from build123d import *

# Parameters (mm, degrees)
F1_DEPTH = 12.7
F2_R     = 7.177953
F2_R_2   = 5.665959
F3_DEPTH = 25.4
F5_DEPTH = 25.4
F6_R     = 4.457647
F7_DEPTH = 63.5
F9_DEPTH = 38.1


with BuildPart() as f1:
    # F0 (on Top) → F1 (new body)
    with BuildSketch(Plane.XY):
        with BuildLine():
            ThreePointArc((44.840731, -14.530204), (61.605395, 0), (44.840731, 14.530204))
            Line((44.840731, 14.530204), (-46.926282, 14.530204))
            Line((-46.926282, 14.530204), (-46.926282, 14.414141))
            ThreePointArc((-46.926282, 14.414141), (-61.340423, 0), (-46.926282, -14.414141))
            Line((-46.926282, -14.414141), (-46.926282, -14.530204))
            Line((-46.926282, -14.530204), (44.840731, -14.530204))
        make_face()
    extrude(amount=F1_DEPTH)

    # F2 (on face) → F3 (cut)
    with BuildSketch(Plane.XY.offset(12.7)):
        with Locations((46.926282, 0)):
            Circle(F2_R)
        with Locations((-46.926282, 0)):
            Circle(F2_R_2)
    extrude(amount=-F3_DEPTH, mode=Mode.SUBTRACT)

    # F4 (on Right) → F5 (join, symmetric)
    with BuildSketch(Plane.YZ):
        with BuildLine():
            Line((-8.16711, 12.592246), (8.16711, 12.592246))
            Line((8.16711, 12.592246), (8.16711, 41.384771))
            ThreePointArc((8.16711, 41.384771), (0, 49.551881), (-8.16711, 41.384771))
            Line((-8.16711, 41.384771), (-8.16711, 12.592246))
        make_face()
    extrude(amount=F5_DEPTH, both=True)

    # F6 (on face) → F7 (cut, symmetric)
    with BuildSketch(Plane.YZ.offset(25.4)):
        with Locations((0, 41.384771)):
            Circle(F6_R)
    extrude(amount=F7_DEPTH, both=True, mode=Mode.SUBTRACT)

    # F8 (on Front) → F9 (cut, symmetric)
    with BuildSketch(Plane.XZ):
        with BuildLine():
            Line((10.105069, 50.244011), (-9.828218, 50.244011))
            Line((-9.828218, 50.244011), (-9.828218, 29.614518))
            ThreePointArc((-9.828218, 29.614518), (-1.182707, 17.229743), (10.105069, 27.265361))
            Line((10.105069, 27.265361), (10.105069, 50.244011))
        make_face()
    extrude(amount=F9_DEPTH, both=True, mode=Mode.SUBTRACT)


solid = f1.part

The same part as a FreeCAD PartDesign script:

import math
import FreeCAD as App
import Part
import Sketcher

V = App.Vector
Q = App.Units.Quantity

doc = App.newDocument("Part")
body = doc.addObject("PartDesign::Body", "Body")

# Sketch on XY plane
sketch1 = doc.addObject("Sketcher::SketchObject", "Sketch")
body.addObject(sketch1)
sketch1.AttachmentSupport = (doc.XY_Plane, [""])
sketch1.MapMode = "FlatFace"
sketch1.addGeometry(Part.ArcOfCircle(Part.Circle(V(46.926282, 0, 0), V(0, 0, 1), 14.679113), math.radians(-98.168), math.radians(98.168)), False)
sketch1.addGeometry(Part.LineSegment(V(44.840731, 14.530204, 0), V(-46.926282, 14.530204, 0)), False)
sketch1.addGeometry(Part.LineSegment(V(-46.926282, 14.530204, 0), V(-46.926282, 14.414141, 0)), False)
sketch1.addGeometry(Part.ArcOfCircle(Part.Circle(V(-46.926282, 0, 0), V(0, 0, 1), 14.414141), math.radians(90), math.radians(270)), False)
sketch1.addGeometry(Part.LineSegment(V(-46.926282, -14.414141, 0), V(-46.926282, -14.530204, 0)), False)
sketch1.addGeometry(Part.LineSegment(V(-46.926282, -14.530204, 0), V(44.840731, -14.530204, 0)), False)
sketch1.addConstraint(Sketcher.Constraint("Coincident", 0, 2, 1, 1))
sketch1.addConstraint(Sketcher.Constraint("Coincident", 1, 2, 2, 1))
sketch1.addConstraint(Sketcher.Constraint("Coincident", 2, 2, 3, 1))
sketch1.addConstraint(Sketcher.Constraint("Coincident", 3, 2, 4, 1))
sketch1.addConstraint(Sketcher.Constraint("Coincident", 4, 2, 5, 1))
sketch1.addConstraint(Sketcher.Constraint("Coincident", 5, 2, 0, 1))
sketch1.addConstraint(Sketcher.Constraint("Horizontal", 1))
sketch1.addConstraint(Sketcher.Constraint("Vertical", 2))
sketch1.addConstraint(Sketcher.Constraint("Vertical", 4))
sketch1.addConstraint(Sketcher.Constraint("Horizontal", 5))
sketch1.addConstraint(Sketcher.Constraint("Symmetric", 0, 3, 3, 3, -1, 1))
sketch1.addConstraint(Sketcher.Constraint("Symmetric", 2, 2, 3, 2, -1))
sketch1.addConstraint(Sketcher.Constraint("Vertical", 3, 3, 1, 2))
sketch1.addConstraint(Sketcher.Constraint("Vertical", 0, 2, 5, 2))
sketch1.addConstraint(Sketcher.Constraint("Radius", 3, 14.414141))
sketch1.addConstraint(Sketcher.Constraint("Radius", 0, 14.679113))
sketch1.addConstraint(Sketcher.Constraint("DistanceX", 1, 2, 1, 1, 91.767013))
sketch1.addConstraint(Sketcher.Constraint("DistanceY", 2, 2, 2, 1, 0.116063))
pad1 = doc.addObject("PartDesign::Pad", "Pad")
body.addObject(pad1)
pad1.Profile = sketch1
pad1.Length = Q("0.5 in")

# Sketch on XY plane
sketch2 = doc.addObject("Sketcher::SketchObject", "Sketch001")
body.addObject(sketch2)
sketch2.AttachmentSupport = (doc.XY_Plane, [""])
sketch2.MapMode = "FlatFace"
sketch2.AttachmentOffset = App.Placement(V(0, 0, 0.5 * 25.4), App.Rotation())
sketch2.addGeometry(Part.Circle(V(46.926282, 0, 0), V(0, 0, 1), 7.177953), False)
sketch2.addGeometry(Part.Circle(V(-46.926282, 0, 0), V(0, 0, 1), 5.665959), False)
sketch2.addConstraint(Sketcher.Constraint("Symmetric", 0, 3, 1, 3, -1, 1))
sketch2.addConstraint(Sketcher.Constraint("PointOnObject", 0, 3, -1))
sketch2.addConstraint(Sketcher.Constraint("Diameter", 0, 14.355906))
sketch2.addConstraint(Sketcher.Constraint("Diameter", 1, 11.331918))
sketch2.addConstraint(Sketcher.Constraint("DistanceX", -1, 1, 0, 3, 46.926282))
pocket1 = doc.addObject("PartDesign::Pocket", "Pocket")
body.addObject(pocket1)
pocket1.Profile = sketch2
pocket1.Length = Q("1 in")

# Sketch on YZ plane
sketch3 = doc.addObject("Sketcher::SketchObject", "Sketch002")
body.addObject(sketch3)
sketch3.AttachmentSupport = (doc.YZ_Plane, [""])
sketch3.MapMode = "FlatFace"
sketch3.addGeometry(Part.LineSegment(V(-8.16711, 12.592246, 0), V(8.16711, 12.592246, 0)), False)
sketch3.addGeometry(Part.LineSegment(V(8.16711, 12.592246, 0), V(8.16711, 41.384771, 0)), False)
sketch3.addGeometry(Part.ArcOfCircle(Part.Circle(V(0, 41.384771, 0), V(0, 0, 1), 8.16711), math.radians(0), math.radians(180)), False)
sketch3.addGeometry(Part.LineSegment(V(-8.16711, 41.384771, 0), V(-8.16711, 12.592246, 0)), False)
sketch3.addConstraint(Sketcher.Constraint("Coincident", 0, 2, 1, 1))
sketch3.addConstraint(Sketcher.Constraint("Tangent", 1, 2, 2, 1))
sketch3.addConstraint(Sketcher.Constraint("Tangent", 2, 2, 3, 1))
sketch3.addConstraint(Sketcher.Constraint("Coincident", 3, 2, 0, 1))
sketch3.addConstraint(Sketcher.Constraint("Horizontal", 0))
sketch3.addConstraint(Sketcher.Constraint("Vertical", 1))
sketch3.addConstraint(Sketcher.Constraint("Vertical", 3))
sketch3.addConstraint(Sketcher.Constraint("PointOnObject", 2, 3, -2))
sketch3.addConstraint(Sketcher.Constraint("Radius", 2, 8.16711))
sketch3.addConstraint(Sketcher.Constraint("DistanceY", 1, 1, 1, 2, 28.792525))
sketch3.addConstraint(Sketcher.Constraint("DistanceY", -1, 1, 2, 3, 41.384771))
pad2 = doc.addObject("PartDesign::Pad", "Pad001")
body.addObject(pad2)
pad2.Profile = sketch3
pad2.Length = Q("2 in")
pad2.Midplane = True

# Sketch on YZ plane
sketch4 = doc.addObject("Sketcher::SketchObject", "Sketch003")
body.addObject(sketch4)
sketch4.AttachmentSupport = (doc.YZ_Plane, [""])
sketch4.MapMode = "FlatFace"
sketch4.AttachmentOffset = App.Placement(V(0, 0, 1 * 25.4), App.Rotation())
sketch4.addGeometry(Part.Circle(V(0, 41.384771, 0), V(0, 0, 1), 4.457647), False)
sketch4.addConstraint(Sketcher.Constraint("PointOnObject", 0, 3, -2))
sketch4.addConstraint(Sketcher.Constraint("Diameter", 0, 8.915294))
sketch4.addConstraint(Sketcher.Constraint("DistanceY", -1, 1, 0, 3, 41.384771))
pocket2 = doc.addObject("PartDesign::Pocket", "Pocket001")
body.addObject(pocket2)
pocket2.Profile = sketch4
pocket2.Length = Q("5 in")
pocket2.Midplane = True

# Sketch on XZ plane
sketch5 = doc.addObject("Sketcher::SketchObject", "Sketch004")
body.addObject(sketch5)
sketch5.AttachmentSupport = (doc.XZ_Plane, [""])
sketch5.MapMode = "FlatFace"
sketch5.addGeometry(Part.LineSegment(V(10.105069, 50.244011, 0), V(-9.828218, 50.244011, 0)), False)
sketch5.addGeometry(Part.LineSegment(V(-9.828218, 50.244011, 0), V(-9.828218, 29.614518, 0)), False)
sketch5.addGeometry(Part.ArcOfCircle(Part.Circle(V(0, 27.26536, 0), V(0, 0, 1), 10.105069), math.radians(166.557278), math.radians(360.000003)), False)
sketch5.addGeometry(Part.LineSegment(V(10.105069, 27.265361, 0), V(10.105069, 50.244011, 0)), False)
sketch5.addConstraint(Sketcher.Constraint("Coincident", 0, 2, 1, 1))
sketch5.addConstraint(Sketcher.Constraint("Coincident", 1, 2, 2, 1))
sketch5.addConstraint(Sketcher.Constraint("Tangent", 2, 2, 3, 1))
sketch5.addConstraint(Sketcher.Constraint("Coincident", 3, 2, 0, 1))
sketch5.addConstraint(Sketcher.Constraint("Horizontal", 0))
sketch5.addConstraint(Sketcher.Constraint("Vertical", 1))
sketch5.addConstraint(Sketcher.Constraint("Vertical", 3))
sketch5.addConstraint(Sketcher.Constraint("PointOnObject", 2, 3, -2))
sketch5.addConstraint(Sketcher.Constraint("Radius", 2, 10.105069))
sketch5.addConstraint(Sketcher.Constraint("DistanceY", 3, 1, 3, 2, 22.97865))
sketch5.addConstraint(Sketcher.Constraint("DistanceX", 0, 2, 0, 1, 19.933287))
sketch5.addConstraint(Sketcher.Constraint("DistanceY", -1, 1, 2, 3, 27.26536))
pocket3 = doc.addObject("PartDesign::Pocket", "Pocket002")
body.addObject(pocket3)
pocket3.Profile = sketch5
pocket3.Length = Q("3 in")
pocket3.Midplane = True

doc.recompute()
